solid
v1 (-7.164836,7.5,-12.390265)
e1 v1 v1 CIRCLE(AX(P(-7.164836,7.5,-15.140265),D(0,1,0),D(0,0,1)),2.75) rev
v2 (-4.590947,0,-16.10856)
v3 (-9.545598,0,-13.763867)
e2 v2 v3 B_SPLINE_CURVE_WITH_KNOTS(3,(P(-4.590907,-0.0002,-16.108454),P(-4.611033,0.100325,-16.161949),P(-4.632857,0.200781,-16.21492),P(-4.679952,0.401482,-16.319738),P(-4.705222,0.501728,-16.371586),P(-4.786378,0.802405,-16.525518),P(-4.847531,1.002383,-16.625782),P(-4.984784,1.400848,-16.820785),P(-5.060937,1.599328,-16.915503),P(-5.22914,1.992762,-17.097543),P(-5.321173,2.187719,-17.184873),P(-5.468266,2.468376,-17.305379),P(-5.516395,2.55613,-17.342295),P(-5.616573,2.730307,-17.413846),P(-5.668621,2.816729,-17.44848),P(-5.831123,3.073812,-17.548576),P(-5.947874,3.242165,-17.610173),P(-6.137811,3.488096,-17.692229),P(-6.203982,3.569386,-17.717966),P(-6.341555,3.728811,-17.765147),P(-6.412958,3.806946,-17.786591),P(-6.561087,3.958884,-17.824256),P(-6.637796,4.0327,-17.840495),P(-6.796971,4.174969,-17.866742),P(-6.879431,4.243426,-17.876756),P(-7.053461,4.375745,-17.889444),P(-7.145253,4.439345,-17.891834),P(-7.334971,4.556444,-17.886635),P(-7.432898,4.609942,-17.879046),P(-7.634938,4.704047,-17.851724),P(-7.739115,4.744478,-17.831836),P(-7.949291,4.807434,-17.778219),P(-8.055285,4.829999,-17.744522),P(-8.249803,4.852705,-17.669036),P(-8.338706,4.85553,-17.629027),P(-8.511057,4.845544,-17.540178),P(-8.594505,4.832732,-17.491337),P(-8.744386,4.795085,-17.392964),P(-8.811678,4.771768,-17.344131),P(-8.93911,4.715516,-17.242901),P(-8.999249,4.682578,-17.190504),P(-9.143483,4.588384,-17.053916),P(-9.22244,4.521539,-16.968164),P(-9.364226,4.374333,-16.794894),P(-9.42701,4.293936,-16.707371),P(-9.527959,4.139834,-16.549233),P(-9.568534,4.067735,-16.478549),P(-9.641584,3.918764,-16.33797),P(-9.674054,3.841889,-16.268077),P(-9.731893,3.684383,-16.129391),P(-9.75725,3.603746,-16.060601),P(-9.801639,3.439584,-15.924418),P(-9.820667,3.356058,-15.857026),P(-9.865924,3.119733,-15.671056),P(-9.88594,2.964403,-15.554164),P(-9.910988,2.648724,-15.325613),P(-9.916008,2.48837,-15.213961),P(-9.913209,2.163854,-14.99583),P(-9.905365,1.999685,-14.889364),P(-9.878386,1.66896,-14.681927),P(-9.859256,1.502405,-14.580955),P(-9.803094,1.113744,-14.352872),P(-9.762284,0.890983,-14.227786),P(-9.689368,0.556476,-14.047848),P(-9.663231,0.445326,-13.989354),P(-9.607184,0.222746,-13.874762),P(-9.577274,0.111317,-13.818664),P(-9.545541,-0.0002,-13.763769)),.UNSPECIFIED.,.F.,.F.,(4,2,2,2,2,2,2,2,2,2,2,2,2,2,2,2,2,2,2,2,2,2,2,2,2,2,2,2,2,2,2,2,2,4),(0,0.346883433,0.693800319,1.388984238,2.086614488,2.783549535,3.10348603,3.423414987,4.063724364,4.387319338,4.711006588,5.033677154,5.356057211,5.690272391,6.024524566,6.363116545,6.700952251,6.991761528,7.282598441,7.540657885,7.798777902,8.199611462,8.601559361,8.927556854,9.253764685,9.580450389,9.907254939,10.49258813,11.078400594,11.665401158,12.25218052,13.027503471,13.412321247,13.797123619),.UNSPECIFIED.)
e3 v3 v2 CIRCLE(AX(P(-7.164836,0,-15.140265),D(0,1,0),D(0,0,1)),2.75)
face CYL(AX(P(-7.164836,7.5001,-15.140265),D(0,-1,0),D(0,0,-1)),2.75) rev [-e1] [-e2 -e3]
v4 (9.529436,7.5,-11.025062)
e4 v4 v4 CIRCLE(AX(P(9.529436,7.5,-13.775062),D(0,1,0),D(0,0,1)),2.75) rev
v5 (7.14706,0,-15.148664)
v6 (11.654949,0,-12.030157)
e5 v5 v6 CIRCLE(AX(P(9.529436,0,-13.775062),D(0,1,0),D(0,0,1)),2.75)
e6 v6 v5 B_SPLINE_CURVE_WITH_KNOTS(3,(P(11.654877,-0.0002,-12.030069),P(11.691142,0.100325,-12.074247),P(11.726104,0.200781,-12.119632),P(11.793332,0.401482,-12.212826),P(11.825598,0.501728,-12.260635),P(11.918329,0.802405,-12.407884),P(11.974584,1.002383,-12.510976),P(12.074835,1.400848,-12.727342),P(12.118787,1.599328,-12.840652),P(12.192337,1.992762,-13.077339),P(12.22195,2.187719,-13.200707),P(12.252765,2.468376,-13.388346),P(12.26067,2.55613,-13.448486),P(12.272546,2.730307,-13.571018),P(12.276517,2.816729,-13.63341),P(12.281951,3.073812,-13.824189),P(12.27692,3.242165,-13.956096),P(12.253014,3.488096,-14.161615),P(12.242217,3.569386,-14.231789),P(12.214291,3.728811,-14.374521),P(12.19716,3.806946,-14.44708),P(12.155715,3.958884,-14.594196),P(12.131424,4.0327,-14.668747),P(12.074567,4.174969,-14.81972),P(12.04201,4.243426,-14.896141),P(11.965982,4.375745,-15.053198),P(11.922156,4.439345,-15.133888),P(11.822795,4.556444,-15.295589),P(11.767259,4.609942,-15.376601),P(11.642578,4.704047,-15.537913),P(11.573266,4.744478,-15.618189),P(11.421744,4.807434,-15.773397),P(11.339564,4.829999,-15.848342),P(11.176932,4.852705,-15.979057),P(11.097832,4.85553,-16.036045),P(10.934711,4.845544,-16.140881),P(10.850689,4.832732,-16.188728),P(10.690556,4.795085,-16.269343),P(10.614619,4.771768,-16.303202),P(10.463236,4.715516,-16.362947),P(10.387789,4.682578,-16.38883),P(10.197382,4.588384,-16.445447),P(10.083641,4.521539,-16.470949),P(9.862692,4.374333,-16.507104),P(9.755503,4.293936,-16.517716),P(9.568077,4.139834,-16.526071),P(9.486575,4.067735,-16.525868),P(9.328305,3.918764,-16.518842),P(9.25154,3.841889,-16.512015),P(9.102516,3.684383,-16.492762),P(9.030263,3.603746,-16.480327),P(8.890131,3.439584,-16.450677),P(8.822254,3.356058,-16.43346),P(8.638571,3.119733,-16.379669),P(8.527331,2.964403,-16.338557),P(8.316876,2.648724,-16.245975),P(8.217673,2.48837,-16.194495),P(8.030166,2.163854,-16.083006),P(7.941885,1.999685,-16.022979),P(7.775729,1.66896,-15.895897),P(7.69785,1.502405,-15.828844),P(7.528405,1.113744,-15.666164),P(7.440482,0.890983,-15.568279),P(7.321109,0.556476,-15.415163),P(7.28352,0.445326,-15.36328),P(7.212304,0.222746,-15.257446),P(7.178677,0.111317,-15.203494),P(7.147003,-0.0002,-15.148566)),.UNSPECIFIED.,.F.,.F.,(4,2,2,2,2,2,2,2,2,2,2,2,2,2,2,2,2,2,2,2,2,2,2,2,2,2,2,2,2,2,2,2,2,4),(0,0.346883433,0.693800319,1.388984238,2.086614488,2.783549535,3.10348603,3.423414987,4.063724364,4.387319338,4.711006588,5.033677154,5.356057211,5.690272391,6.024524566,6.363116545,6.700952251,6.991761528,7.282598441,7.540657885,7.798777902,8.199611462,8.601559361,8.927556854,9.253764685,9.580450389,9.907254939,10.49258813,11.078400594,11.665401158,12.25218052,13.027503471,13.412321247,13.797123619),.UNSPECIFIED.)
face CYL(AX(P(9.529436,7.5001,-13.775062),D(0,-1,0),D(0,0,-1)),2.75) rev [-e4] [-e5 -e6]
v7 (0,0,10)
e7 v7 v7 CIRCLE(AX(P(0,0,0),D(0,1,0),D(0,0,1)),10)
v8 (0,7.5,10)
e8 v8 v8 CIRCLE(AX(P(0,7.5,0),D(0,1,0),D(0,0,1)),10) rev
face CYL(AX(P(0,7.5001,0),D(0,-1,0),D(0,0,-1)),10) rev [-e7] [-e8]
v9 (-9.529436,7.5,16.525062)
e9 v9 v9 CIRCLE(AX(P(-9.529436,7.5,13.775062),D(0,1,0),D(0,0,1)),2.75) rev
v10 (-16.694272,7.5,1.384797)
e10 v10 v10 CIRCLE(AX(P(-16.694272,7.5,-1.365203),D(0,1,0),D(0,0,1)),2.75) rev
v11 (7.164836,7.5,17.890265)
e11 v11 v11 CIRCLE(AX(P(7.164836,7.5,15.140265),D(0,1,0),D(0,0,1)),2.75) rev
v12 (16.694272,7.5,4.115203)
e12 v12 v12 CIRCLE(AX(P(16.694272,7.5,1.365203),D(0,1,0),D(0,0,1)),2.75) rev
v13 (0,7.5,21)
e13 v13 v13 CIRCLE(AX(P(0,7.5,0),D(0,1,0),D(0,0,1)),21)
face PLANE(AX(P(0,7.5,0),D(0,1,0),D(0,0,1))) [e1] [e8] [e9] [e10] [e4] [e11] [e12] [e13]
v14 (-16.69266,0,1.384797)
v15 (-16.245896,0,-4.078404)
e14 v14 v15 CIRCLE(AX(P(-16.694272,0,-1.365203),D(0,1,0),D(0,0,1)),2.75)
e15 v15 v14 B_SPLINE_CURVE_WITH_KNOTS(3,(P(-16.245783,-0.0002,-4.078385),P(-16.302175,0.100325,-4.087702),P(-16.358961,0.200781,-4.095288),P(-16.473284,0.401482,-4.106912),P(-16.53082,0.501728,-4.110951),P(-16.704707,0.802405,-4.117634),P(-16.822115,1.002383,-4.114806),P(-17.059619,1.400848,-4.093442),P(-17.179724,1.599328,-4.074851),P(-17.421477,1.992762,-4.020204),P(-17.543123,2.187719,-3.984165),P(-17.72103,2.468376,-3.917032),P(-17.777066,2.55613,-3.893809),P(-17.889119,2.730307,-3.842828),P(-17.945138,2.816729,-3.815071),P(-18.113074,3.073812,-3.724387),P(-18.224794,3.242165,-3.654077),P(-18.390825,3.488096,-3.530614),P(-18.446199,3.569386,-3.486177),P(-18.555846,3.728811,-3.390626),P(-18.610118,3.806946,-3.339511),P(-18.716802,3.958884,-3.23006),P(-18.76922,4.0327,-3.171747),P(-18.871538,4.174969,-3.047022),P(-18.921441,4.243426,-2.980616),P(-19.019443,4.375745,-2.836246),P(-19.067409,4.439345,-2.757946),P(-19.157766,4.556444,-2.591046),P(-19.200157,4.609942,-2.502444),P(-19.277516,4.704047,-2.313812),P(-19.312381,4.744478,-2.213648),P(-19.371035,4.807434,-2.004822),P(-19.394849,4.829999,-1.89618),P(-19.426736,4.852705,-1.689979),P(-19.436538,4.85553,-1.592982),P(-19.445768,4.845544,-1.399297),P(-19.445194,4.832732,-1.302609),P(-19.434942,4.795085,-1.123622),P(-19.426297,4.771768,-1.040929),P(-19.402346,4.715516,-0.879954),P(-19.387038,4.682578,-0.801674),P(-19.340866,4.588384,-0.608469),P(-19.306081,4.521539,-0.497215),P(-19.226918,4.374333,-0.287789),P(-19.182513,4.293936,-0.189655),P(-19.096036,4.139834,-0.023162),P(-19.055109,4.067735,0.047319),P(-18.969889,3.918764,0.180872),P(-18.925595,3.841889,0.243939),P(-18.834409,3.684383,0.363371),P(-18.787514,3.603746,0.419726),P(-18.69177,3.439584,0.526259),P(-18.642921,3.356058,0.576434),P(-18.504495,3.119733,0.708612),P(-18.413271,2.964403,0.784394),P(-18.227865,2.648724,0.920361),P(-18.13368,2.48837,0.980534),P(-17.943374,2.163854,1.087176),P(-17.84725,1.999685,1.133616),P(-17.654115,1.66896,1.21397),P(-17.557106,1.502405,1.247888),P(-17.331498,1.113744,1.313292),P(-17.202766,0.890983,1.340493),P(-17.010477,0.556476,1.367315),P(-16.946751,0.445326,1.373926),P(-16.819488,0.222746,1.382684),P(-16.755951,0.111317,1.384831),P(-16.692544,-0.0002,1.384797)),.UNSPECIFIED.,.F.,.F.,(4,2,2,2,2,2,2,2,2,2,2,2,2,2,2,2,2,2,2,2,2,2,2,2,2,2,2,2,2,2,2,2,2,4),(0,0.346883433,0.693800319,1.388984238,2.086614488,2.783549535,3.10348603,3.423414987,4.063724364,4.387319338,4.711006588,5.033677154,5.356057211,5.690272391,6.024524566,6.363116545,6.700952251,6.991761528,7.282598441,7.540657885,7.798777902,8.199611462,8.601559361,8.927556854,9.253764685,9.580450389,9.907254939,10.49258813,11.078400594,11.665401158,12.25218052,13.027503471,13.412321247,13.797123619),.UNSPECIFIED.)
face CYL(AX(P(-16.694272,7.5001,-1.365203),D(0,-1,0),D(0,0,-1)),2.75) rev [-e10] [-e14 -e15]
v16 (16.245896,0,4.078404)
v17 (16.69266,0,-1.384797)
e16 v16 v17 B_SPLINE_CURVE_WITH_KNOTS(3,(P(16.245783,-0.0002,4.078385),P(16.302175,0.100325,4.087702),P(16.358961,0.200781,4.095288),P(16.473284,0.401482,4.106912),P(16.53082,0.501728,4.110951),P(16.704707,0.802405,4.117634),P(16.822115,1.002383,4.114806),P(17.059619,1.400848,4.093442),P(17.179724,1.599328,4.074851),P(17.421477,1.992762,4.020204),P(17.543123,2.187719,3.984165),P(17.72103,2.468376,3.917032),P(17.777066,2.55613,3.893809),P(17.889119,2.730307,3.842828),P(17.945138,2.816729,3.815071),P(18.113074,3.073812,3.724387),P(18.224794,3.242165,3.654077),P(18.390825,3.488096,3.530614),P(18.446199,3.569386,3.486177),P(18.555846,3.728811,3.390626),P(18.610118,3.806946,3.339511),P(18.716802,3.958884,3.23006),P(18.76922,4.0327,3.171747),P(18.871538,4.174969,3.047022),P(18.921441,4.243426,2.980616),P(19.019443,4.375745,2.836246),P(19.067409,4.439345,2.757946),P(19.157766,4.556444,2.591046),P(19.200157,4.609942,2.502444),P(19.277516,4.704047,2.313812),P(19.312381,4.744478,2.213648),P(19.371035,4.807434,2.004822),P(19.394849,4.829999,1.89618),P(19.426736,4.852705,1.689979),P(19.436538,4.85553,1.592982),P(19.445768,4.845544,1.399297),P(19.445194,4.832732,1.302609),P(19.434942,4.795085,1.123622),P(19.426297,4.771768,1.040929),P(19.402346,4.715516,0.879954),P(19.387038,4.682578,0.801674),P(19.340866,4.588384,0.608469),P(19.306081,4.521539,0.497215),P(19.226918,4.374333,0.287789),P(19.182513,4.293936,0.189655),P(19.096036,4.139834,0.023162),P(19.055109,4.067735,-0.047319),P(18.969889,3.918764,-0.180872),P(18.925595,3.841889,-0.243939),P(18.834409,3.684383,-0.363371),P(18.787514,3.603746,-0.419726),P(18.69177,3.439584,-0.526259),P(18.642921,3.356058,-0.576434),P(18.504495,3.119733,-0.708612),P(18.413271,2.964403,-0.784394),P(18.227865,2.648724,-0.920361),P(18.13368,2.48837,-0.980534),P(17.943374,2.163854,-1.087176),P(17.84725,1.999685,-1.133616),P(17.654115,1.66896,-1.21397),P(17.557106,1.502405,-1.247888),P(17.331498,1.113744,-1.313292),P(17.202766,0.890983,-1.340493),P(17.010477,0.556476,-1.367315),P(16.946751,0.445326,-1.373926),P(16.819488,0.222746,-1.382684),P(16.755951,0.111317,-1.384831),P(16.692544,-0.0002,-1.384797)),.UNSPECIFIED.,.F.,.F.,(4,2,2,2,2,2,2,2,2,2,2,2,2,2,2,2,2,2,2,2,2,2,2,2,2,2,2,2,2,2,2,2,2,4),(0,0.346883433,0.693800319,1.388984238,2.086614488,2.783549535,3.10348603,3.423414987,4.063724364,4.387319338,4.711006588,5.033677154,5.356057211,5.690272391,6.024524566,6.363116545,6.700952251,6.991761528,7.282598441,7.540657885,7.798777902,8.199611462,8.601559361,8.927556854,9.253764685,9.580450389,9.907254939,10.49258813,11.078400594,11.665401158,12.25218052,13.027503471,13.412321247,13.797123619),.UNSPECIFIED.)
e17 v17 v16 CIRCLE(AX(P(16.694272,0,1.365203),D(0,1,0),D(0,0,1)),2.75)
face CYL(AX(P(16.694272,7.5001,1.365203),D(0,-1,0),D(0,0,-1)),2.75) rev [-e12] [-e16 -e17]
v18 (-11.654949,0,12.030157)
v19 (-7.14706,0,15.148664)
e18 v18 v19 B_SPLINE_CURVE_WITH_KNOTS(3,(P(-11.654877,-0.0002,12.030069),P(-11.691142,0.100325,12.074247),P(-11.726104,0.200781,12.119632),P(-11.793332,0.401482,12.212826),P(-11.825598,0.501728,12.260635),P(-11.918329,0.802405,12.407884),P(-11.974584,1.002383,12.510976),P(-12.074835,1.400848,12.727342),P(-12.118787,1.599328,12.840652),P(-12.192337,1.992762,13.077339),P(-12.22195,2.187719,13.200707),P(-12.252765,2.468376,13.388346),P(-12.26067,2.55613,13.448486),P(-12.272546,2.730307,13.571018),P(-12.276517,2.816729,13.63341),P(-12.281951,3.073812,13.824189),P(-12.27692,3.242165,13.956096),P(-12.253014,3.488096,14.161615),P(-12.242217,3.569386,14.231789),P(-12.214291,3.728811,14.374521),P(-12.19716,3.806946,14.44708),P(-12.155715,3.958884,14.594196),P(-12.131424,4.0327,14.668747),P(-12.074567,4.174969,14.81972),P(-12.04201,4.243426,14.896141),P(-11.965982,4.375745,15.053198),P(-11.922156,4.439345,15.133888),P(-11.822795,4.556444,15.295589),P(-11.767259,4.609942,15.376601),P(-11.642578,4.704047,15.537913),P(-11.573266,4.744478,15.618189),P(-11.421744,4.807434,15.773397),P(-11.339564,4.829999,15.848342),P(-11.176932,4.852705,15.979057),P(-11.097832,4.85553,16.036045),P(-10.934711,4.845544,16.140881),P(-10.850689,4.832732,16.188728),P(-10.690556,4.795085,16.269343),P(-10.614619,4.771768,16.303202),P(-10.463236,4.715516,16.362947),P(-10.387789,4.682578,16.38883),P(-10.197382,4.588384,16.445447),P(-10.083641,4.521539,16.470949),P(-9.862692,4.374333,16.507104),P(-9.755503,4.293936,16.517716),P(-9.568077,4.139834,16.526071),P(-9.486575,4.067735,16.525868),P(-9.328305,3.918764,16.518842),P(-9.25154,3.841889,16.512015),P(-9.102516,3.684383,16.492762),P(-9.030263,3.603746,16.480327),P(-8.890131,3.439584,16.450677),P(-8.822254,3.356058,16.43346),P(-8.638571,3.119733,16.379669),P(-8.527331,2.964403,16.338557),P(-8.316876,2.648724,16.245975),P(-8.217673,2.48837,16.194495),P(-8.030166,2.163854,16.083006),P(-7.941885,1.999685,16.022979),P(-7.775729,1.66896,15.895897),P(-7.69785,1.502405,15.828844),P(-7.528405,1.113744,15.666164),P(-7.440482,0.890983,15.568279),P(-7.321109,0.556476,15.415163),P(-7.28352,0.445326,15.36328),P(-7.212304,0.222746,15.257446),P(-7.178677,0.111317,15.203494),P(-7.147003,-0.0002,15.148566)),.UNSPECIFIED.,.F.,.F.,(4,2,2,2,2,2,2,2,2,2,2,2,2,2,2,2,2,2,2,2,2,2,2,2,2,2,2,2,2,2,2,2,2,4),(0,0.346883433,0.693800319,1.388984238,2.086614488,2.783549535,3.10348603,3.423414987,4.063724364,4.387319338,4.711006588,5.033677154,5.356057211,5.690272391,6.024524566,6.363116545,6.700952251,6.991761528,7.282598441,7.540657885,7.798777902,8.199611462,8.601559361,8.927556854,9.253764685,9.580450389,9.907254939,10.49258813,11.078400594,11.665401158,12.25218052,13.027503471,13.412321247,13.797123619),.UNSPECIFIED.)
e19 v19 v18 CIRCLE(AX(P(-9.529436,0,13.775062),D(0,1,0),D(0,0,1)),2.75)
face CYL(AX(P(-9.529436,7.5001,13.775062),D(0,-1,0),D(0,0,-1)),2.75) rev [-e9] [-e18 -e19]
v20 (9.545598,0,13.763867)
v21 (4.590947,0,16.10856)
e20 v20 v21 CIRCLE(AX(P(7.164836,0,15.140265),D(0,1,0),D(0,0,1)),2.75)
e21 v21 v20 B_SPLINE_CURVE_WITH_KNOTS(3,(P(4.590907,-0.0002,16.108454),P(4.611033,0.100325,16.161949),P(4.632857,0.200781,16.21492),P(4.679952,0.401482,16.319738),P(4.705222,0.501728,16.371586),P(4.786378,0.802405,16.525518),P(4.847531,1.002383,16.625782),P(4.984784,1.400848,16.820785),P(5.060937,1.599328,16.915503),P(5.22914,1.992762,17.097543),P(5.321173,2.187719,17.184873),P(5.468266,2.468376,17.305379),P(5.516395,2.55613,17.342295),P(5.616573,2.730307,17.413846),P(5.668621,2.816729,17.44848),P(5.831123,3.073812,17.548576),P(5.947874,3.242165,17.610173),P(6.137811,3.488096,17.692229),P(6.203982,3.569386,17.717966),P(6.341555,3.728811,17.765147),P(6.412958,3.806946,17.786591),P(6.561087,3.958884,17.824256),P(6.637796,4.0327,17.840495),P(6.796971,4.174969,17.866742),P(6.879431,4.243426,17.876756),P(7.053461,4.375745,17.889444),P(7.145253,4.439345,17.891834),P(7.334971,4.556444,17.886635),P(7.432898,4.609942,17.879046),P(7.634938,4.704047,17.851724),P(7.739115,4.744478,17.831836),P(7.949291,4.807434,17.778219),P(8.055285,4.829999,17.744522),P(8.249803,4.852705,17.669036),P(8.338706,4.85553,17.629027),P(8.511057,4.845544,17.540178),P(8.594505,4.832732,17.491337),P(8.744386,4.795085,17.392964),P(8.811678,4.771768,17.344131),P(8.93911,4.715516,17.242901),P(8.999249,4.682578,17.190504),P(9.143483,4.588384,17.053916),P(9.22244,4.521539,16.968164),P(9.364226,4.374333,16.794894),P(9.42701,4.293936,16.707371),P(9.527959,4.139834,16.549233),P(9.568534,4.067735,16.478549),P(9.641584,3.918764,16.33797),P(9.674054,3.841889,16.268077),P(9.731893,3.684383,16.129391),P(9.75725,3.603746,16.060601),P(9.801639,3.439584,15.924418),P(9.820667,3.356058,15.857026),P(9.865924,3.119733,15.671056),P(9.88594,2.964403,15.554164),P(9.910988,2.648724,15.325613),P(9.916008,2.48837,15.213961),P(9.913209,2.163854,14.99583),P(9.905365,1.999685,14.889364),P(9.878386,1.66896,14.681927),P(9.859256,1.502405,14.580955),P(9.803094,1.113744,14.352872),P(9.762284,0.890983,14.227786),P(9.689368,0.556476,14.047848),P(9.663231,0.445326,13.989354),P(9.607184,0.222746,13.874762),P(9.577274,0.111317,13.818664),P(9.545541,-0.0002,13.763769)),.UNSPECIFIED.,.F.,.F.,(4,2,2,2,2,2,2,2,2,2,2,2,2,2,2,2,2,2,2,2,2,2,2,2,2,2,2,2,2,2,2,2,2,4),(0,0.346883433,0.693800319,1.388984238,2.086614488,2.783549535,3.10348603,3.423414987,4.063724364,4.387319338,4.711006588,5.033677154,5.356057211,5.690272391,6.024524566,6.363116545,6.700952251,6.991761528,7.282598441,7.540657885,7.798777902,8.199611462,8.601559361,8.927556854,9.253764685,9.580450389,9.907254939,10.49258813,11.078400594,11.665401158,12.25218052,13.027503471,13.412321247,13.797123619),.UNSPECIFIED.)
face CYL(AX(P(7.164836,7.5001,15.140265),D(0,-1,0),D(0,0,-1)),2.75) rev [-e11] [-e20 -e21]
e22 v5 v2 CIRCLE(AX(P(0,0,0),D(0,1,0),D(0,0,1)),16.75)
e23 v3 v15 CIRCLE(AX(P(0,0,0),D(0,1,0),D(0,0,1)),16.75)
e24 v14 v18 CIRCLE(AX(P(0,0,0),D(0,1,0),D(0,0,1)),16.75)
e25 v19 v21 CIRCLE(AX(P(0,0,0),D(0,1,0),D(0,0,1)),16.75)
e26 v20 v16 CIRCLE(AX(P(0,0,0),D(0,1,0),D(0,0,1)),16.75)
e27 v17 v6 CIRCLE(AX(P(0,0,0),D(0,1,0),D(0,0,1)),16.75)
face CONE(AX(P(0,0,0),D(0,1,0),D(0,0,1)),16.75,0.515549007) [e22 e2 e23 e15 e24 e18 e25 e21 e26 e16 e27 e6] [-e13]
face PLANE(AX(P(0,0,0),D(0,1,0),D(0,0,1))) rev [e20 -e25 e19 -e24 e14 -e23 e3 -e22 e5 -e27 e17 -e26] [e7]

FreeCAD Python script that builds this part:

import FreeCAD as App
import Part
import Sketcher

V = App.Vector
Q = App.Units.Quantity

doc = App.newDocument("Part")
body = doc.addObject("PartDesign::Body", "Body")

sketch1 = doc.addObject("Sketcher::SketchObject", "Sketch")
body.addObject(sketch1)
sketch1.AttachmentSupport = (doc.XZ_Plane, [""])
sketch1.MapMode = "FlatFace"
sketch1.addGeometry(Part.Circle(V(0, 0, 0), V(0, 0, 1), 16.75), False)
sketch1.addConstraint([
    Sketcher.Constraint("Coincident", 0, 3, -1, 1),
    Sketcher.Constraint("Diameter", 0, Q("33.5 mm")),
])

sketch2 = doc.addObject("Sketcher::SketchObject", "Sketch001")
body.addObject(sketch2)
sketch2.AttachmentSupport = (doc.XZ_Plane, [""])
sketch2.MapMode = "FlatFace"
sketch2.AttachmentOffset = App.Placement(V(0, 0, -7.5), App.Rotation())
sketch2.addGeometry(Part.Circle(V(0, 0, 0), V(0, 0, 1), 21), False)
sketch2.addConstraint([
    Sketcher.Constraint("Coincident", 0, 3, -1, 1),
    Sketcher.Constraint("Diameter", 0, Q("42 mm")),
])

additiveloft = doc.addObject("PartDesign::AdditiveLoft", "AdditiveLoft")
body.addObject(additiveloft)
additiveloft.Profile = sketch1
additiveloft.Sections = [sketch2]

sketch3 = doc.addObject("Sketcher::SketchObject", "Sketch002")
body.addObject(sketch3)
sketch3.AttachmentSupport = (doc.XZ_Plane, [""])
sketch3.MapMode = "FlatFace"
sketch3.addGeometry([
    Part.Circle(V(-16.694272, -1.365203, 0), V(0, 0, 1), 2.75),
    Part.Circle(V(-9.529436, 13.775062, 0), V(0, 0, 1), 2.75),
    Part.Circle(V(9.529436, -13.775062, 0), V(0, 0, 1), 2.75),
    Part.Circle(V(-7.164836, -15.140265, 0), V(0, 0, 1), 2.75),
    Part.Circle(V(0, 0, 0), V(0, 0, 1), 10),
    Part.Circle(V(7.164836, 15.140265, 0), V(0, 0, 1), 2.75),
    Part.Circle(V(16.694272, 1.365203, 0), V(0, 0, 1), 2.75),
], False)
sketch3.addConstraint([
    Sketcher.Constraint("Coincident", 4, 3, -1, 1),
    Sketcher.Constraint("Equal", 0, 1),
    Sketcher.Constraint("Equal", 1, 2),
    Sketcher.Constraint("Equal", 2, 3),
    Sketcher.Constraint("Equal", 3, 5),
    Sketcher.Constraint("Equal", 5, 6),
    Sketcher.Constraint("Symmetric", 1, 3, 2, 3, -1, 1),
    Sketcher.Constraint("Symmetric", 3, 3, 5, 3, -1, 1),
    Sketcher.Constraint("Symmetric", 0, 3, 6, 3, -1, 1),
    Sketcher.Constraint("Diameter", 4, Q("20 mm")),
    Sketcher.Constraint("Diameter", 0, Q("5.5 mm")),
    Sketcher.Constraint("DistanceX", 1, 3, 3, 3, Q("2.364601 mm")),
    Sketcher.Constraint("DistanceX", 0, 3, 2, 3, Q("26.223708 mm")),
    Sketcher.Constraint("DistanceY", 2, 3, 0, 3, Q("12.40986 mm")),
    Sketcher.Constraint("DistanceX", 3, 3, 5, 3, Q("14.329671 mm")),
    Sketcher.Constraint("DistanceY", 3, 3, 5, 3, Q("30.28053 mm")),
    Sketcher.Constraint("DistanceY", 0, 3, -1, 1, Q("1.365203 mm")),
])
pocket1 = doc.addObject("PartDesign::Pocket", "Pocket")
body.addObject(pocket1)
pocket1.Profile = sketch3
pocket1.Type = "ThroughAll"

doc.recompute()
